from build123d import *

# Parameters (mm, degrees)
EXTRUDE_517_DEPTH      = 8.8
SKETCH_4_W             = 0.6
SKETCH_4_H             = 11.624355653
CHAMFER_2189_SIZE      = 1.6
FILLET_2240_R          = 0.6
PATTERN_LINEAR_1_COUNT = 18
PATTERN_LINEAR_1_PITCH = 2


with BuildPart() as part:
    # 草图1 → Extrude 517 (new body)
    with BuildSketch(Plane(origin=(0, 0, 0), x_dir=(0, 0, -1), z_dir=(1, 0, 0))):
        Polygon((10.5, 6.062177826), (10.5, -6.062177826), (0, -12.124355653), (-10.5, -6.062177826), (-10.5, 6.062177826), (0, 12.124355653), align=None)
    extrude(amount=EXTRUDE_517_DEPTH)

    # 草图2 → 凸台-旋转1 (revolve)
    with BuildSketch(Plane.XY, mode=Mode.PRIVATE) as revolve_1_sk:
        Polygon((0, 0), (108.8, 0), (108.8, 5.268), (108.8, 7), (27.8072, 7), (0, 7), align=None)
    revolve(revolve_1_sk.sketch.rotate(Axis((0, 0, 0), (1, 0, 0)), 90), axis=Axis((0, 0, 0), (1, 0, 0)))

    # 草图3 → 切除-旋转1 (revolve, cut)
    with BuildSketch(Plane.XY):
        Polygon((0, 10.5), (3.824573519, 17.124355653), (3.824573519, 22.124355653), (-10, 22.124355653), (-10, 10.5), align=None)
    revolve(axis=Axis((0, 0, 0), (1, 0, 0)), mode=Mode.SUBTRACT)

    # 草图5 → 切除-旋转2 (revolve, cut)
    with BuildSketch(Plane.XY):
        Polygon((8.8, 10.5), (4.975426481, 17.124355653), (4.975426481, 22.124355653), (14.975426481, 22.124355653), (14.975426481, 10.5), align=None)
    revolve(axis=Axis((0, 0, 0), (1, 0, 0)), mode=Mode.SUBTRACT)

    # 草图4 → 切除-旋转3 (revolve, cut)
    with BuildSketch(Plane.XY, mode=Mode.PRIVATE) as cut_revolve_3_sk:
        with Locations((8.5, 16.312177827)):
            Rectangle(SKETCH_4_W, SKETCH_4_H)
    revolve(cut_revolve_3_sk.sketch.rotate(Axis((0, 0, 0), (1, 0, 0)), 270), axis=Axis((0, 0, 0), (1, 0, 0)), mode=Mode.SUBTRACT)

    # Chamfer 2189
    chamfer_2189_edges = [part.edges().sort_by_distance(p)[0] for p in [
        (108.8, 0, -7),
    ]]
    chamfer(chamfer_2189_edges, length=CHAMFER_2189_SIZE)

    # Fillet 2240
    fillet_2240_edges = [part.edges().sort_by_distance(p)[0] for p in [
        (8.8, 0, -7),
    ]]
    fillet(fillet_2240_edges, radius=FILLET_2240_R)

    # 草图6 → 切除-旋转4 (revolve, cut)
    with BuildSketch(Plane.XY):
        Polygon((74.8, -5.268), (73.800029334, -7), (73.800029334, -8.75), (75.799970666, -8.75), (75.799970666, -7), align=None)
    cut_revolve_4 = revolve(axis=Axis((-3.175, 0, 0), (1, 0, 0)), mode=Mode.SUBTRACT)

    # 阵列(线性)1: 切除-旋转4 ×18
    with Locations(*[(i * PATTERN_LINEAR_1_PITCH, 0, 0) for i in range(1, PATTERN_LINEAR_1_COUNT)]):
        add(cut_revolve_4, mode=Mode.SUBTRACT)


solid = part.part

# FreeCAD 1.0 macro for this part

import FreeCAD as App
import Part
import Sketcher

V = App.Vector
Q = App.Units.Quantity


def edges_at(feature, points):
    """Names of the edges that pass closest to the given points."""
    edges = feature.Shape.Edges
    near = lambda p: min(range(len(edges)), key=lambda i: edges[i].distToShape(Part.Vertex(*p))[0])
    return sorted({f"Edge{near(p) + 1}" for p in points})


def add_polygon(sketch, points):
    """Adds a closed chain of lines whose ends are joined by coincident constraints."""
    first, n = sketch.GeometryCount, len(points)
    for a, b in zip(points, points[1:] + points[:1]):
        sketch.addGeometry(Part.LineSegment(App.Vector(*a, 0), App.Vector(*b, 0)), False)
    for i in range(n):
        sketch.addConstraint(Sketcher.Constraint("Coincident", first + i, 2, first + (i + 1) % n, 1))

doc = App.newDocument("Part")
body = doc.addObject("PartDesign::Body", "Body")

# Sketch on YZ plane
sketch1 = body.newObject("Sketcher::SketchObject", "Sketch")
sketch1.AttachmentSupport = (doc.getObject("YZ_Plane"), [""])
sketch1.MapMode = "FlatFace"
add_polygon(sketch1, [(-6.062178, -10.5), (6.062178, -10.5), (12.124356, 0), (6.062178, 10.5), (-6.062178, 10.5), (-12.124356, 0)])  # lines 0-5
sketch1.addConstraint(Sketcher.Constraint("Horizontal", 0))
sketch1.addConstraint(Sketcher.Constraint("Horizontal", 3))
sketch1.addConstraint(Sketcher.Constraint("Symmetric", 0, 2, 3, 2, -1, 1))
sketch1.addConstraint(Sketcher.Constraint("Symmetric", 1, 2, 4, 2, -1, 1))
sketch1.addConstraint(Sketcher.Constraint("PointOnObject", 1, 2, -1))
sketch1.addConstraint(Sketcher.Constraint("Parallel", 2, 5))
sketch1.addConstraint(Sketcher.Constraint("Vertical", 0, 2, 2, 2))
sketch1.addConstraint(Sketcher.Constraint("Angle", 1, Q("60 deg")))
sketch1.addConstraint(Sketcher.Constraint("DistanceY", 0, 2, 2, 2, 21.0))
sketch1.addConstraint(Sketcher.Constraint("DistanceX", 0, 1, 0, 2, 12.124356))
pad1 = body.newObject("PartDesign::Pad", "Pad")
pad1.Profile = sketch1
pad1.Length = 8.8

# Sketch on XY plane
sketch2 = body.newObject("Sketcher::SketchObject", "Sketch001")
sketch2.AttachmentSupport = (doc.getObject("XY_Plane"), [""])
sketch2.MapMode = "FlatFace"
add_polygon(sketch2, [(0, 0), (108.8, 0), (108.8, 7), (0, 7)])  # lines 0-3
sketch2.addConstraint(Sketcher.Constraint("Horizontal", 0))
sketch2.addConstraint(Sketcher.Constraint("Vertical", 1))
sketch2.addConstraint(Sketcher.Constraint("Horizontal", 2))
sketch2.addConstraint(Sketcher.Constraint("Vertical", 3))
sketch2.addConstraint(Sketcher.Constraint("Coincident", 3, 2, -1, 1))
sketch2.addConstraint(Sketcher.Constraint("DistanceY", 1, 1, 1, 2, 7.0))
sketch2.addConstraint(Sketcher.Constraint("DistanceX", 0, 1, 0, 2, 108.8))
revolution = body.newObject("PartDesign::Revolution", "Revolution")
revolution.Profile = sketch2
revolution.ReferenceAxis = (sketch2, ["H_Axis"])
revolution.Angle = 360

# Sketch on XY plane
sketch3 = body.newObject("Sketcher::SketchObject", "Sketch002")
sketch3.AttachmentSupport = (doc.getObject("XY_Plane"), [""])
sketch3.MapMode = "FlatFace"
add_polygon(sketch3, [(0, 10.5), (3.824574, 17.124356), (3.824574, 22.124356), (-10, 22.124356), (-10, 10.5)])  # lines 0-4
sketch3.addConstraint(Sketcher.Constraint("Vertical", 1))
sketch3.addConstraint(Sketcher.Constraint("Horizontal", 2))
sketch3.addConstraint(Sketcher.Constraint("Vertical", 3))
sketch3.addConstraint(Sketcher.Constraint("Horizontal", 4))
sketch3.addConstraint(Sketcher.Constraint("PointOnObject", 4, 2, -2))
sketch3.addConstraint(Sketcher.Constraint("DistanceX", 4, 1, 4, 2, 10.0))
sketch3.addConstraint(Sketcher.Constraint("DistanceY", 1, 1, 1, 2, 5.0))
sketch3.addConstraint(Sketcher.Constraint("Angle", 0, Q("60 deg")))
sketch3.addConstraint(Sketcher.Constraint("DistanceY", -1, 1, 3, 2, 10.5))
sketch3.addConstraint(Sketcher.Constraint("DistanceX", 2, 2, 2, 1, 13.824574))
groove = body.newObject("PartDesign::Groove", "Groove")
groove.Profile = sketch3
groove.ReferenceAxis = (sketch3, ["H_Axis"])
groove.Angle = 360

# Sketch on XY plane
sketch4 = body.newObject("Sketcher::SketchObject", "Sketch003")
sketch4.AttachmentSupport = (doc.getObject("XY_Plane"), [""])
sketch4.MapMode = "FlatFace"
add_polygon(sketch4, [(4.975426, 17.124356), (8.8, 10.5), (14.975426, 10.5), (14.975426, 22.124356), (4.975426, 22.124356)])  # lines 0-4
sketch4.addConstraint(Sketcher.Constraint("Horizontal", 1))
sketch4.addConstraint(Sketcher.Constraint("Vertical", 2))
sketch4.addConstraint(Sketcher.Constraint("Horizontal", 3))
sketch4.addConstraint(Sketcher.Constraint("Vertical", 4))
sketch4.addConstraint(Sketcher.Constraint("DistanceX", 3, 2, 3, 1, 10.0))
sketch4.addConstraint(Sketcher.Constraint("DistanceY", 4, 2, 4, 1, 5.0))
sketch4.addConstraint(Sketcher.Constraint("Angle", 0, Q("-60 deg")))
sketch4.addConstraint(Sketcher.Constraint("DistanceX", -1, 1, 0, 2, 8.8))
sketch4.addConstraint(Sketcher.Constraint("DistanceY", -1, 1, 0, 2, 10.5))
sketch4.addConstraint(Sketcher.Constraint("DistanceX", 1, 1, 1, 2, 6.175426))
groove2 = body.newObject("PartDesign::Groove", "Groove001")
groove2.Profile = sketch4
groove2.ReferenceAxis = (sketch4, ["H_Axis"])
groove2.Angle = 360

# Sketch on XY plane
sketch5 = body.newObject("Sketcher::SketchObject", "Sketch004")
sketch5.AttachmentSupport = (doc.getObject("XY_Plane"), [""])
sketch5.MapMode = "FlatFace"
add_polygon(sketch5, [(8.2, 22.124356), (8.2, 10.5), (8.8, 10.5), (8.8, 22.124356)])  # lines 0-3
sketch5.addConstraint(Sketcher.Constraint("Vertical", 0))
sketch5.addConstraint(Sketcher.Constraint("Horizontal", 1))
sketch5.addConstraint(Sketcher.Constraint("Vertical", 2))
sketch5.addConstraint(Sketcher.Constraint("Horizontal", 3))
sketch5.addConstraint(Sketcher.Constraint("DistanceX", 1, 1, 1, 2, 0.6))
sketch5.addConstraint(Sketcher.Constraint("DistanceX", -1, 1, 0, 2, 8.2))
sketch5.addConstraint(Sketcher.Constraint("DistanceY", -1, 1, 0, 2, 10.5))
sketch5.addConstraint(Sketcher.Constraint("DistanceY", 0, 2, 0, 1, 11.624356))
groove3 = body.newObject("PartDesign::Groove", "Groove002")
groove3.Profile = sketch5
groove3.ReferenceAxis = (sketch5, ["H_Axis"])
groove3.Angle = 360
doc.recompute()

chamfer = body.newObject("PartDesign::Chamfer", "Chamfer")
chamfer.Base = (groove3, edges_at(groove3, [(108.8, 0, -7)]))
chamfer.Size = 1.6
doc.recompute()

fillet = body.newObject("PartDesign::Fillet", "Fillet")
fillet.Base = (chamfer, edges_at(chamfer, [(8.8, 0, -7)]))
fillet.Radius = 0.6

# Sketch on XY plane
sketch6 = body.newObject("Sketcher::SketchObject", "Sketch005")
sketch6.AttachmentSupport = (doc.getObject("XY_Plane"), [""])
sketch6.MapMode = "FlatFace"
add_polygon(sketch6, [(74.8, -5.268), (73.800029, -7), (73.800029, -8.75), (75.799971, -8.75), (75.799971, -7)])  # lines 0-4
sketch6.addConstraint(Sketcher.Constraint("Vertical", 1))
sketch6.addConstraint(Sketcher.Constraint("Horizontal", 2))
sketch6.addConstraint(Sketcher.Constraint("Vertical", 3))
sketch6.addConstraint(Sketcher.Constraint("Horizontal", 0, 2, 3, 2))
sketch6.addConstraint(Sketcher.Constraint("Equal", 0, 4))
sketch6.addConstraint(Sketcher.Constraint("Angle", 0, Q("-120 deg")))
sketch6.addConstraint(Sketcher.Constraint("DistanceY", 0, 2, -1, 1, 7.0))
sketch6.addConstraint(Sketcher.Constraint("DistanceY", 1, 2, 1, 1, 1.75))
sketch6.addConstraint(Sketcher.Constraint("DistanceX", -1, 1, 4, 2, 74.8))
sketch6.addConstraint(Sketcher.Constraint("DistanceY", 4, 2, -1, 1, 5.268))
groove4 = body.newObject("PartDesign::Groove", "Groove003")
groove4.Profile = sketch6
groove4.ReferenceAxis = (sketch6, ["H_Axis"])
groove4.Angle = 360
doc.recompute()

linearpattern = body.newObject("PartDesign::LinearPattern", "LinearPattern")
linearpattern.Originals = [groove4]
linearpattern.Direction = (doc.getObject("X_Axis"), [""])
linearpattern.Mode = "offset"
linearpattern.Offset = 2
linearpattern.Occurrences = 18
body.Tip = linearpattern

doc.recompute()
